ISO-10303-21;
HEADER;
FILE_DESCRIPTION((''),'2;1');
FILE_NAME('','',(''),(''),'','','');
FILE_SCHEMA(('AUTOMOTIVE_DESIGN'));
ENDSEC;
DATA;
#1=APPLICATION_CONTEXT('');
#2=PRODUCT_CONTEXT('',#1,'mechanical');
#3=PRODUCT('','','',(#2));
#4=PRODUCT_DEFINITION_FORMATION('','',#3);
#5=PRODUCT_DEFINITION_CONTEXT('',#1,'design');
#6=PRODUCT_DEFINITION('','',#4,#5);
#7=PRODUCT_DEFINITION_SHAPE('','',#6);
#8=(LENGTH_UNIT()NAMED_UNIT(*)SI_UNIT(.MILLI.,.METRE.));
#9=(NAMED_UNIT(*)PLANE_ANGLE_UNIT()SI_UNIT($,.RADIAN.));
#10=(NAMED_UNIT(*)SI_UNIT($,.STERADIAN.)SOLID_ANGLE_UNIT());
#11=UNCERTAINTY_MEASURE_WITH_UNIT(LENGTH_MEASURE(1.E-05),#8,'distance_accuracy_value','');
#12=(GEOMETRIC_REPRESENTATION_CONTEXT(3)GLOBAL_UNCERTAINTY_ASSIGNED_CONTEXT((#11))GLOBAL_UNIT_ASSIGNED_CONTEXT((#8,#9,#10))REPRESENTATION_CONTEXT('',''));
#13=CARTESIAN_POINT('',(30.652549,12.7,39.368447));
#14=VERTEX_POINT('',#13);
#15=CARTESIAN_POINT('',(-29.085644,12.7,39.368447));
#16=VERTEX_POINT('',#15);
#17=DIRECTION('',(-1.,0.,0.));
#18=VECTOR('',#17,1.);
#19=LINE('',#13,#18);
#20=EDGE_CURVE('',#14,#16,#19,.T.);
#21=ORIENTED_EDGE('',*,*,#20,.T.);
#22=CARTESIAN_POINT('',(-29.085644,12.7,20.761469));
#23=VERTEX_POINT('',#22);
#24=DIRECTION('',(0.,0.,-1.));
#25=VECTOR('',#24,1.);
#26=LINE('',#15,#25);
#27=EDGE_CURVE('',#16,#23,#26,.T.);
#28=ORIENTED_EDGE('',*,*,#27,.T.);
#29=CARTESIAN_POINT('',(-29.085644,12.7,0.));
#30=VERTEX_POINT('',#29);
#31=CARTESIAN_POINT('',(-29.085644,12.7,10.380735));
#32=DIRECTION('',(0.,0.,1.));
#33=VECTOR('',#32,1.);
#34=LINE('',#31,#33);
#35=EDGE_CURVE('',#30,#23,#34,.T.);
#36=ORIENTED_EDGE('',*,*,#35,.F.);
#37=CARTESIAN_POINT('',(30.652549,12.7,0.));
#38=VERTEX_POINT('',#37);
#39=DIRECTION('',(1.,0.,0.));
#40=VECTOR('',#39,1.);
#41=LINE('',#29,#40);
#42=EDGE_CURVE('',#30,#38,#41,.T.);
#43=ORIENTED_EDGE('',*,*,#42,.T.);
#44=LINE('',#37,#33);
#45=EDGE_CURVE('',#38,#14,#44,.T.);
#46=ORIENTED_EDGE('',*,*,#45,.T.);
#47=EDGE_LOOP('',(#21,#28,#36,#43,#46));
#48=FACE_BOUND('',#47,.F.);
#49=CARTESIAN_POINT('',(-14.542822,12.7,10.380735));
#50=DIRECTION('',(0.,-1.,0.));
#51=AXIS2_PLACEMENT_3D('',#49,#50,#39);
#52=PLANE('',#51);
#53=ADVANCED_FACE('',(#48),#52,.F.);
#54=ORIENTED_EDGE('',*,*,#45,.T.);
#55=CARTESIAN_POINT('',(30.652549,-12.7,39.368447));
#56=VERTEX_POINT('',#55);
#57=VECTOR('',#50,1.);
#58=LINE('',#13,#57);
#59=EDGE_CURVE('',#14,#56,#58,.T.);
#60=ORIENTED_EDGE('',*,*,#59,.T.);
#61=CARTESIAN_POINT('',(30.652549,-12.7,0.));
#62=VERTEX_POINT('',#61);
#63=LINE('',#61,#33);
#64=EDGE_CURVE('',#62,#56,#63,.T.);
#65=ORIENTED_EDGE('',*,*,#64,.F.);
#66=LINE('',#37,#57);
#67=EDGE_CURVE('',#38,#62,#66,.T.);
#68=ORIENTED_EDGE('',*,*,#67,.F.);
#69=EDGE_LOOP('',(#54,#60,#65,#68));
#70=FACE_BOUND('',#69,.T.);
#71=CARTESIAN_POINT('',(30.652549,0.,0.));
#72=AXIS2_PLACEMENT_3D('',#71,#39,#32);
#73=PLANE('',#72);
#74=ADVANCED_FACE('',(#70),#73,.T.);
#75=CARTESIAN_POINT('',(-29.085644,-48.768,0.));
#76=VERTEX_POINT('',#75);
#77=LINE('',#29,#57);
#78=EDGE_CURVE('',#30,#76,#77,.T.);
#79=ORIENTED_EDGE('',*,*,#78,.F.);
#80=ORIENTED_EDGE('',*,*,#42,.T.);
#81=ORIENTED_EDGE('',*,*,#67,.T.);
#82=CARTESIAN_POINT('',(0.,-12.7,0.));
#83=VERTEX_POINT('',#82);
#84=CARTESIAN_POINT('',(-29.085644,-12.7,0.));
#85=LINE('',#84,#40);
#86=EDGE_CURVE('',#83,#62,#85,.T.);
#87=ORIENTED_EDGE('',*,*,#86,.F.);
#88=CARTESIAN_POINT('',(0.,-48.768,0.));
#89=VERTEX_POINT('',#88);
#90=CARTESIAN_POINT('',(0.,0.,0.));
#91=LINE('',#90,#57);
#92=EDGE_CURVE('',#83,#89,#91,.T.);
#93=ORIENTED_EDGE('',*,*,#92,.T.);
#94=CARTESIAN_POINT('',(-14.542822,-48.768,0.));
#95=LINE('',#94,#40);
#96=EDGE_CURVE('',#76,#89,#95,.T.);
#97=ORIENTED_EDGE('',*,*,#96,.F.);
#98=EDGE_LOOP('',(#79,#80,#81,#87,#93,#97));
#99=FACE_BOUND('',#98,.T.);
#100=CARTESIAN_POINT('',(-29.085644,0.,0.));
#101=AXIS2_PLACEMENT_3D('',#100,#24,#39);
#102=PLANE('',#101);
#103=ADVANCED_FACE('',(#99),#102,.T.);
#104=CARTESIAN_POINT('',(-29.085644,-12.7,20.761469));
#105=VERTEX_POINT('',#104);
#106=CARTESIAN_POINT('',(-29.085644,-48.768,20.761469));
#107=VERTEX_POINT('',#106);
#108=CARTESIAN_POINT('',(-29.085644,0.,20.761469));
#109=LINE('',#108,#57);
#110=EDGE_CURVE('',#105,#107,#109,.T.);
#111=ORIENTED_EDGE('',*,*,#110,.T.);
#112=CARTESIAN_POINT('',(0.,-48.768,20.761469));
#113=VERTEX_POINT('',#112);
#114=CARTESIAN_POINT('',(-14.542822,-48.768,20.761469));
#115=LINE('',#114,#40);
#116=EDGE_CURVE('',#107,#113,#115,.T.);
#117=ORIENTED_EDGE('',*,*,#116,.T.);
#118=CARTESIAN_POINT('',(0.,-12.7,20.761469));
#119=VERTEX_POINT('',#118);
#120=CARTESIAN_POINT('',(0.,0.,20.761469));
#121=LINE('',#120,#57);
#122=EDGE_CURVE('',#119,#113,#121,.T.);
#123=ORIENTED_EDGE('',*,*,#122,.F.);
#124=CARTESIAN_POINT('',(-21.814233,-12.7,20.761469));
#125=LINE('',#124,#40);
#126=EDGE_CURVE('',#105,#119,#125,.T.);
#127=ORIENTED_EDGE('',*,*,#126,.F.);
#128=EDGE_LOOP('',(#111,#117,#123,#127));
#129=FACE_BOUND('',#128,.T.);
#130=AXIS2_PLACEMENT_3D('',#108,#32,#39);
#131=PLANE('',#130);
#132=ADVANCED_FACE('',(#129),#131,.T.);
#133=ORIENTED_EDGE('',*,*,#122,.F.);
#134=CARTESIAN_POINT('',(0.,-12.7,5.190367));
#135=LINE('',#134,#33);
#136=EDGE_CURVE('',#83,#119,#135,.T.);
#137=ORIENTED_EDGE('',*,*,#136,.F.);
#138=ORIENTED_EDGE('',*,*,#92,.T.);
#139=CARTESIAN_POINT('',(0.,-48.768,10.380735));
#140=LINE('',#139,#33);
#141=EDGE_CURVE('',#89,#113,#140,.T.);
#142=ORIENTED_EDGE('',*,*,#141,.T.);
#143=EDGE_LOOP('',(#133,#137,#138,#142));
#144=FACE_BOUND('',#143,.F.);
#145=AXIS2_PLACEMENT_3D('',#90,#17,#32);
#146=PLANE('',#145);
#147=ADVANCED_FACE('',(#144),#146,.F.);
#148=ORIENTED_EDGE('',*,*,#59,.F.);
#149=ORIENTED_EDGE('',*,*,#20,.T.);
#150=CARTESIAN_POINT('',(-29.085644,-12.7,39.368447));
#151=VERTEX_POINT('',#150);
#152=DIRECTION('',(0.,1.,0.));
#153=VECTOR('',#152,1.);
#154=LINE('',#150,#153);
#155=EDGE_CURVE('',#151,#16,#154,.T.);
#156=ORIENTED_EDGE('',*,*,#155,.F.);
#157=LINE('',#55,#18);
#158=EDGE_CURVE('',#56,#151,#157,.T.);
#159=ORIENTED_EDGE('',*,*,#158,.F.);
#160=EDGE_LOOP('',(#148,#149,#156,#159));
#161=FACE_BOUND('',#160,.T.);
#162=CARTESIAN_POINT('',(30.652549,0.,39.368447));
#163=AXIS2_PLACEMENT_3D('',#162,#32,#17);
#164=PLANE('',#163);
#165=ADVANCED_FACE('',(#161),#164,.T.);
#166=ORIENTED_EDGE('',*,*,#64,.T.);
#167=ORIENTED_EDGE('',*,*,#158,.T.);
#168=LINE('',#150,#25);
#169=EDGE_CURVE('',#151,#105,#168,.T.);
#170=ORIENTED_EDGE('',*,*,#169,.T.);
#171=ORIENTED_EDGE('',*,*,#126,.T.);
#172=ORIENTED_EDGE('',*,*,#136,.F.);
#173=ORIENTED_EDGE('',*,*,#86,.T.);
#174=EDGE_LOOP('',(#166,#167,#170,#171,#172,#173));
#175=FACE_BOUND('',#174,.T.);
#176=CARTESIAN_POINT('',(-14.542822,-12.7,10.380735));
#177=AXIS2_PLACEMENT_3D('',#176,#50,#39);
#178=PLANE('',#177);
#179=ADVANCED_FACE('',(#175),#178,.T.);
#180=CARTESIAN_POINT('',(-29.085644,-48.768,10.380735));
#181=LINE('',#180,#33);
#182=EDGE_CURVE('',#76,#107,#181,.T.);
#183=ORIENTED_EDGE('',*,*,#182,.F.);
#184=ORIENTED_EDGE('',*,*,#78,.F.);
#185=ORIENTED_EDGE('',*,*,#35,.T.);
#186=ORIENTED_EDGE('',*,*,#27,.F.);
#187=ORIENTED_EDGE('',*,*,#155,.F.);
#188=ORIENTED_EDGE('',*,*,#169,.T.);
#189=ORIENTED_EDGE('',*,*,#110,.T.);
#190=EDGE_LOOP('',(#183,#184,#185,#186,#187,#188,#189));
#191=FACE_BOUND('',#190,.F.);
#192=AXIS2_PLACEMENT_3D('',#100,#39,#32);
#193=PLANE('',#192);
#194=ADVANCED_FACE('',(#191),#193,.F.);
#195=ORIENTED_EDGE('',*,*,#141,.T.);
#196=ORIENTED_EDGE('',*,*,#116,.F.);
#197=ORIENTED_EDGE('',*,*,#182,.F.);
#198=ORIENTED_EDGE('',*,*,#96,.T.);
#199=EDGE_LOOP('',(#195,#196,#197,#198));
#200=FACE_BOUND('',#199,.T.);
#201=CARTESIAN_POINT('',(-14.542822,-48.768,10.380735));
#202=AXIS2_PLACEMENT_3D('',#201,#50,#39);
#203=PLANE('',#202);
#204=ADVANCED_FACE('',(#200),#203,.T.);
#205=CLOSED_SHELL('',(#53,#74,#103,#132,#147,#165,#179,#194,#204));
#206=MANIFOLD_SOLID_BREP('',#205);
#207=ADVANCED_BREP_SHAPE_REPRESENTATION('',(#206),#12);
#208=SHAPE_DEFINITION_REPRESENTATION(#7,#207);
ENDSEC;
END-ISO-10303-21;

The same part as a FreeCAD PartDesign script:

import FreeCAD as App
import Part
import Sketcher
Q = App.Units.Quantity

doc = App.newDocument("Part")
params = doc.addObject("Spreadsheet::Sheet", "Params")
for row, (alias, value) in enumerate([
    ("pad1_length", "1.92 in"),
    ("pad2_length", "1 in"),
], start=1):
    params.set(f"A{row}", alias)
    params.set(f"B{row}", "=" + value)
    params.setAlias(f"B{row}", alias)

body = doc.addObject("PartDesign::Body", "Body")

sketch1 = body.newObject("Sketcher::SketchObject", "Sketch")
sketch1.AttachmentSupport = (doc.getObject("XZ_Plane"), [""])
sketch1.MapMode = "FlatFace"
sketch1.addGeometry(Part.LineSegment(App.Vector(-29, 21, 0), App.Vector(-29, 0, 0)), False)
sketch1.addGeometry(Part.LineSegment(App.Vector(-29, 0, 0), App.Vector(0, 0, 0)), False)
sketch1.addGeometry(Part.LineSegment(App.Vector(0, 0, 0), App.Vector(0, 21, 0)), False)
sketch1.addGeometry(Part.LineSegment(App.Vector(0, 21, 0), App.Vector(-29, 21, 0)), False)
sketch1.addConstraint(Sketcher.Constraint("Coincident", 0, 2, 1, 1))
sketch1.addConstraint(Sketcher.Constraint("Coincident", 1, 2, 2, 1))
sketch1.addConstraint(Sketcher.Constraint("Coincident", 2, 2, 3, 1))
sketch1.addConstraint(Sketcher.Constraint("Coincident", 3, 2, 0, 1))
sketch1.addConstraint(Sketcher.Constraint("Vertical", 0))
sketch1.addConstraint(Sketcher.Constraint("Horizontal", 1))
sketch1.addConstraint(Sketcher.Constraint("Vertical", 2))
sketch1.addConstraint(Sketcher.Constraint("Horizontal", 3))
sketch1.addConstraint(Sketcher.Constraint("Coincident", 1, 2, -1, 1))
sketch1.addConstraint(Sketcher.Constraint("DistanceY", 0, 2, 0, 1, Q("20.761469 mm")))
sketch1.addConstraint(Sketcher.Constraint("DistanceX", 1, 1, 1, 2, Q("29.085644 mm")))
pad1 = body.newObject("PartDesign::Pad", "Pad")
pad1.Profile = sketch1
pad1.setExpression("Length", "Params.pad1_length")

sketch2 = body.newObject("Sketcher::SketchObject", "Sketch001")
sketch2.AttachmentSupport = (doc.getObject("XZ_Plane"), [""])
sketch2.MapMode = "FlatFace"
sketch2.addGeometry(Part.LineSegment(App.Vector(-29, 21, 0), App.Vector(-29, 0, 0)), False)
sketch2.addGeometry(Part.LineSegment(App.Vector(-29, 0, 0), App.Vector(31, 0, 0)), False)
sketch2.addGeometry(Part.LineSegment(App.Vector(31, 0, 0), App.Vector(31, 39, 0)), False)
sketch2.addGeometry(Part.LineSegment(App.Vector(31, 39, 0), App.Vector(-29, 39, 0)), False)
sketch2.addGeometry(Part.LineSegment(App.Vector(-29, 39, 0), App.Vector(-29, 21, 0)), False)
sketch2.addConstraint(Sketcher.Constraint("Coincident", 0, 2, 1, 1))
sketch2.addConstraint(Sketcher.Constraint("Coincident", 1, 2, 2, 1))
sketch2.addConstraint(Sketcher.Constraint("Coincident", 2, 2, 3, 1))
sketch2.addConstraint(Sketcher.Constraint("Coincident", 3, 2, 4, 1))
sketch2.addConstraint(Sketcher.Constraint("Coincident", 4, 2, 0, 1))
sketch2.addConstraint(Sketcher.Constraint("Vertical", 0))
sketch2.addConstraint(Sketcher.Constraint("Horizontal", 1))
sketch2.addConstraint(Sketcher.Constraint("Vertical", 2))
sketch2.addConstraint(Sketcher.Constraint("Horizontal", 3))
sketch2.addConstraint(Sketcher.Constraint("Vertical", 4))
sketch2.addConstraint(Sketcher.Constraint("PointOnObject", 0, 2, -1))
sketch2.addConstraint(Sketcher.Constraint("DistanceY", 0, 2, 0, 1, Q("20.761469 mm")))
sketch2.addConstraint(Sketcher.Constraint("DistanceX", 1, 1, 1, 2, Q("59.738193 mm")))
sketch2.addConstraint(Sketcher.Constraint("DistanceY", 2, 1, 2, 2, Q("39.368447 mm")))
sketch2.addConstraint(Sketcher.Constraint("DistanceX", -1, 1, 1, 2, Q("30.652549 mm")))
pad2 = body.newObject("PartDesign::Pad", "Pad001")
pad2.Profile = sketch2
pad2.setExpression("Length", "Params.pad2_length")
pad2.Midplane = True

doc.recompute()
